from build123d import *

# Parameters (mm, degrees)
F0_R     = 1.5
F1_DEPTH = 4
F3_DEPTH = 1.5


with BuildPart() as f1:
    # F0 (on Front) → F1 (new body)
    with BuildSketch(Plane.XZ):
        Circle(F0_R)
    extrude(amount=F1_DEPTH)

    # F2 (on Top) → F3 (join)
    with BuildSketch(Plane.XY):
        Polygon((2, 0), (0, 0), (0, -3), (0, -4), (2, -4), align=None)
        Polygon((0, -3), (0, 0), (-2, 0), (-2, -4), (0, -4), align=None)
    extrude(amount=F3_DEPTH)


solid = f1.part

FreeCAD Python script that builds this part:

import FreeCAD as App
import Part
import Sketcher
from FreeCAD import Vector
Q = App.Units.Quantity

doc = App.newDocument("Part")
body = doc.addObject("PartDesign::Body", "Body")

# Sketch on XZ plane
sketch1 = doc.addObject("Sketcher::SketchObject", "Sketch")
body.addObject(sketch1)
sketch1.AttachmentSupport = (doc.XZ_Plane, [""])
sketch1.MapMode = "FlatFace"
sketch1.addGeometry(Part.Circle(Vector(0, 0, 0), Vector(0, 0, 1), 1.5), False)
sketch1.addConstraint([
    Sketcher.Constraint("Coincident", 0, 3, -1, 1),
    Sketcher.Constraint("Diameter", 0, Q("3 mm")),
])
pad1 = doc.addObject("PartDesign::Pad", "Pad")
body.addObject(pad1)
pad1.Profile = sketch1
pad1.Length = 4

# Sketch on XY plane
sketch2 = doc.addObject("Sketcher::SketchObject", "Sketch001")
body.addObject(sketch2)
sketch2.AttachmentSupport = (doc.XY_Plane, [""])
sketch2.MapMode = "FlatFace"
sketch2.addGeometry([
    Part.LineSegment(Vector(2, 0, 0), Vector(-2, 0, 0)),
    Part.LineSegment(Vector(-2, 0, 0), Vector(-2, -4, 0)),
    Part.LineSegment(Vector(-2, -4, 0), Vector(2, -4, 0)),
    Part.LineSegment(Vector(2, -4, 0), Vector(2, 0, 0)),
], False)
sketch2.addConstraint([
    Sketcher.Constraint("Coincident", 0, 2, 1, 1),
    Sketcher.Constraint("Coincident", 1, 2, 2, 1),
    Sketcher.Constraint("Coincident", 2, 2, 3, 1),
    Sketcher.Constraint("Coincident", 3, 2, 0, 1),
    Sketcher.Constraint("Horizontal", 0),
    Sketcher.Constraint("Vertical", 1),
    Sketcher.Constraint("Horizontal", 2),
    Sketcher.Constraint("Vertical", 3),
    Sketcher.Constraint("Symmetric", 0, 2, 3, 2, -1, 1),
    Sketcher.Constraint("Equal", 2, 1),
    Sketcher.Constraint("DistanceX", 0, 2, 0, 1, Q("4 mm")),
])
pad2 = doc.addObject("PartDesign::Pad", "Pad001")
body.addObject(pad2)
pad2.Profile = sketch2
pad2.Length = 1.5

doc.recompute()
